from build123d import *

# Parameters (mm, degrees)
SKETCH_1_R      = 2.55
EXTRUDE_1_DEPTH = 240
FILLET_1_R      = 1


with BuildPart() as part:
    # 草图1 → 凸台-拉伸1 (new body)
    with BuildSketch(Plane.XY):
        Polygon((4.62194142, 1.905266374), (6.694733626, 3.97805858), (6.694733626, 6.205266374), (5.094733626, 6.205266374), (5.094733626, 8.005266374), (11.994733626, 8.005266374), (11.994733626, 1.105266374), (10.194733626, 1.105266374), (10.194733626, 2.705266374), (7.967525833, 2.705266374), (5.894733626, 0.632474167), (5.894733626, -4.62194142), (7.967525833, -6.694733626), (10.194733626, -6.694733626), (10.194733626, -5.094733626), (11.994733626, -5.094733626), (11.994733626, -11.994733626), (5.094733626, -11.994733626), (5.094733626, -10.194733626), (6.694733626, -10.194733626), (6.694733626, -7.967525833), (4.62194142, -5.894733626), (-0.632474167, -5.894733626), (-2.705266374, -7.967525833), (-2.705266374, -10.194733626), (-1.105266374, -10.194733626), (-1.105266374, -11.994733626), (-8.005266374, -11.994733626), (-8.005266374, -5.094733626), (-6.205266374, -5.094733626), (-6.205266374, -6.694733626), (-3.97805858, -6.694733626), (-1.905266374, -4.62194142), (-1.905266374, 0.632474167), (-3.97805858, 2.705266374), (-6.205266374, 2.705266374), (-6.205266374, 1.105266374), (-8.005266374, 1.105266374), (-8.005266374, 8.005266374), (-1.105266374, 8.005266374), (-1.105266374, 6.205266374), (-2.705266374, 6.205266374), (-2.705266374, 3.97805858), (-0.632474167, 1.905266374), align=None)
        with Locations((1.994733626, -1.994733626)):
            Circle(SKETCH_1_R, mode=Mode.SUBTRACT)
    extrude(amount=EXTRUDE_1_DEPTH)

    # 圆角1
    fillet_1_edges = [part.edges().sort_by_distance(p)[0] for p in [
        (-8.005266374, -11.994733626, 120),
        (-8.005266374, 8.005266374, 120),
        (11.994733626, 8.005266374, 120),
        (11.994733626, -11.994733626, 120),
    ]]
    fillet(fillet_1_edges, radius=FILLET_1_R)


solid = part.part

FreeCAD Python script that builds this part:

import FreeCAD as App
import Part
import Sketcher
from FreeCAD import Vector


def edges_at(feature, points):
    """Names of the edges that pass closest to the given points."""
    edges = feature.Shape.Edges
    near = lambda p: min(range(len(edges)), key=lambda i: edges[i].distToShape(Part.Vertex(*p))[0])
    return sorted({f"Edge{near(p) + 1}" for p in points})

doc = App.newDocument("Part")
body = doc.addObject("PartDesign::Body", "Body")

# Sketch on XY plane
sketch1 = body.newObject("Sketcher::SketchObject", "Sketch")
sketch1.AttachmentSupport = (doc.getObject("XY_Plane"), [""])
sketch1.MapMode = "FlatFace"
sketch1.addGeometry(Part.LineSegment(Vector(6.7, 4, 0), Vector(4.6, 1.9, 0)), False)
sketch1.addGeometry(Part.LineSegment(Vector(4.6, 1.9, 0), Vector(-0.6, 1.9, 0)), False)
sketch1.addGeometry(Part.LineSegment(Vector(-0.6, 1.9, 0), Vector(-2.7, 4, 0)), False)
sketch1.addGeometry(Part.LineSegment(Vector(-2.7, 4, 0), Vector(-2.7, 6.2, 0)), False)
sketch1.addGeometry(Part.LineSegment(Vector(-2.7, 6.2, 0), Vector(-1.1, 6.2, 0)), False)
sketch1.addGeometry(Part.LineSegment(Vector(-1.1, 6.2, 0), Vector(-1.1, 8, 0)), False)
sketch1.addGeometry(Part.LineSegment(Vector(-1.1, 8, 0), Vector(-8, 8, 0)), False)
sketch1.addGeometry(Part.LineSegment(Vector(-8, 8, 0), Vector(-8, 1.1, 0)), False)
sketch1.addGeometry(Part.LineSegment(Vector(-8, 1.1, 0), Vector(-6.2, 1.1, 0)), False)
sketch1.addGeometry(Part.LineSegment(Vector(-6.2, 1.1, 0), Vector(-6.2, 2.7, 0)), False)
sketch1.addGeometry(Part.LineSegment(Vector(-6.2, 2.7, 0), Vector(-4, 2.7, 0)), False)
sketch1.addGeometry(Part.LineSegment(Vector(-4, 2.7, 0), Vector(-1.9, 0.6, 0)), False)
sketch1.addGeometry(Part.LineSegment(Vector(-1.9, 0.6, 0), Vector(-1.9, -4.6, 0)), False)
sketch1.addGeometry(Part.LineSegment(Vector(-1.9, -4.6, 0), Vector(-4, -6.7, 0)), False)
sketch1.addGeometry(Part.LineSegment(Vector(-4, -6.7, 0), Vector(-6.2, -6.7, 0)), False)
sketch1.addGeometry(Part.LineSegment(Vector(-6.2, -6.7, 0), Vector(-6.2, -5.1, 0)), False)
sketch1.addGeometry(Part.LineSegment(Vector(-6.2, -5.1, 0), Vector(-8, -5.1, 0)), False)
sketch1.addGeometry(Part.LineSegment(Vector(-8, -5.1, 0), Vector(-8, -12, 0)), False)
sketch1.addGeometry(Part.LineSegment(Vector(-8, -12, 0), Vector(-1.1, -12, 0)), False)
sketch1.addGeometry(Part.LineSegment(Vector(-1.1, -12, 0), Vector(-1.1, -10.2, 0)), False)
sketch1.addGeometry(Part.LineSegment(Vector(-1.1, -10.2, 0), Vector(-2.7, -10.2, 0)), False)
sketch1.addGeometry(Part.LineSegment(Vector(-2.7, -10.2, 0), Vector(-2.7, -8, 0)), False)
sketch1.addGeometry(Part.LineSegment(Vector(-2.7, -8, 0), Vector(-0.6, -5.9, 0)), False)
sketch1.addGeometry(Part.LineSegment(Vector(-0.6, -5.9, 0), Vector(4.6, -5.9, 0)), False)
sketch1.addGeometry(Part.LineSegment(Vector(4.6, -5.9, 0), Vector(6.7, -8, 0)), False)
sketch1.addGeometry(Part.LineSegment(Vector(6.7, -8, 0), Vector(6.7, -10.2, 0)), False)
sketch1.addGeometry(Part.LineSegment(Vector(6.7, -10.2, 0), Vector(5.1, -10.2, 0)), False)
sketch1.addGeometry(Part.LineSegment(Vector(5.1, -10.2, 0), Vector(5.1, -12, 0)), False)
sketch1.addGeometry(Part.LineSegment(Vector(5.1, -12, 0), Vector(12, -12, 0)), False)
sketch1.addGeometry(Part.LineSegment(Vector(12, -12, 0), Vector(12, -5.1, 0)), False)
sketch1.addGeometry(Part.LineSegment(Vector(12, -5.1, 0), Vector(10.2, -5.1, 0)), False)
sketch1.addGeometry(Part.LineSegment(Vector(10.2, -5.1, 0), Vector(10.2, -6.7, 0)), False)
sketch1.addGeometry(Part.LineSegment(Vector(10.2, -6.7, 0), Vector(8, -6.7, 0)), False)
sketch1.addGeometry(Part.LineSegment(Vector(8, -6.7, 0), Vector(5.9, -4.6, 0)), False)
sketch1.addGeometry(Part.LineSegment(Vector(5.9, -4.6, 0), Vector(5.9, 0.6, 0)), False)
sketch1.addGeometry(Part.LineSegment(Vector(5.9, 0.6, 0), Vector(8, 2.7, 0)), False)
sketch1.addGeometry(Part.LineSegment(Vector(8, 2.7, 0), Vector(10.2, 2.7, 0)), False)
sketch1.addGeometry(Part.LineSegment(Vector(10.2, 2.7, 0), Vector(10.2, 1.1, 0)), False)
sketch1.addGeometry(Part.LineSegment(Vector(10.2, 1.1, 0), Vector(12, 1.1, 0)), False)
sketch1.addGeometry(Part.LineSegment(Vector(12, 1.1, 0), Vector(12, 8, 0)), False)
sketch1.addGeometry(Part.LineSegment(Vector(12, 8, 0), Vector(5.1, 8, 0)), False)
sketch1.addGeometry(Part.LineSegment(Vector(5.1, 8, 0), Vector(5.1, 6.2, 0)), False)
sketch1.addGeometry(Part.LineSegment(Vector(5.1, 6.2, 0), Vector(6.7, 6.2, 0)), False)
sketch1.addGeometry(Part.LineSegment(Vector(6.7, 6.2, 0), Vector(6.7, 4, 0)), False)
sketch1.addGeometry(Part.Circle(Vector(2, -2, 0), Vector(0, 0, 1), 2.5), False)
sketch1.addConstraint(Sketcher.Constraint("Coincident", 0, 2, 1, 1))
sketch1.addConstraint(Sketcher.Constraint("Coincident", 1, 2, 2, 1))
sketch1.addConstraint(Sketcher.Constraint("Coincident", 2, 2, 3, 1))
sketch1.addConstraint(Sketcher.Constraint("Coincident", 3, 2, 4, 1))
sketch1.addConstraint(Sketcher.Constraint("Coincident", 4, 2, 5, 1))
sketch1.addConstraint(Sketcher.Constraint("Coincident", 5, 2, 6, 1))
sketch1.addConstraint(Sketcher.Constraint("Coincident", 6, 2, 7, 1))
sketch1.addConstraint(Sketcher.Constraint("Coincident", 7, 2, 8, 1))
sketch1.addConstraint(Sketcher.Constraint("Coincident", 8, 2, 9, 1))
sketch1.addConstraint(Sketcher.Constraint("Coincident", 9, 2, 10, 1))
sketch1.addConstraint(Sketcher.Constraint("Coincident", 10, 2, 11, 1))
sketch1.addConstraint(Sketcher.Constraint("Coincident", 11, 2, 12, 1))
sketch1.addConstraint(Sketcher.Constraint("Coincident", 12, 2, 13, 1))
sketch1.addConstraint(Sketcher.Constraint("Coincident", 13, 2, 14, 1))
sketch1.addConstraint(Sketcher.Constraint("Coincident", 14, 2, 15, 1))
sketch1.addConstraint(Sketcher.Constraint("Coincident", 15, 2, 16, 1))
sketch1.addConstraint(Sketcher.Constraint("Coincident", 16, 2, 17, 1))
sketch1.addConstraint(Sketcher.Constraint("Coincident", 17, 2, 18, 1))
sketch1.addConstraint(Sketcher.Constraint("Coincident", 18, 2, 19, 1))
sketch1.addConstraint(Sketcher.Constraint("Coincident", 19, 2, 20, 1))
sketch1.addConstraint(Sketcher.Constraint("Coincident", 20, 2, 21, 1))
sketch1.addConstraint(Sketcher.Constraint("Coincident", 21, 2, 22, 1))
sketch1.addConstraint(Sketcher.Constraint("Coincident", 22, 2, 23, 1))
sketch1.addConstraint(Sketcher.Constraint("Coincident", 23, 2, 24, 1))
sketch1.addConstraint(Sketcher.Constraint("Coincident", 24, 2, 25, 1))
sketch1.addConstraint(Sketcher.Constraint("Coincident", 25, 2, 26, 1))
sketch1.addConstraint(Sketcher.Constraint("Coincident", 26, 2, 27, 1))
sketch1.addConstraint(Sketcher.Constraint("Coincident", 27, 2, 28, 1))
sketch1.addConstraint(Sketcher.Constraint("Coincident", 28, 2, 29, 1))
sketch1.addConstraint(Sketcher.Constraint("Coincident", 29, 2, 30, 1))
sketch1.addConstraint(Sketcher.Constraint("Coincident", 30, 2, 31, 1))
sketch1.addConstraint(Sketcher.Constraint("Coincident", 31, 2, 32, 1))
sketch1.addConstraint(Sketcher.Constraint("Coincident", 32, 2, 33, 1))
sketch1.addConstraint(Sketcher.Constraint("Coincident", 33, 2, 34, 1))
sketch1.addConstraint(Sketcher.Constraint("Coincident", 34, 2, 35, 1))
sketch1.addConstraint(Sketcher.Constraint("Coincident", 35, 2, 36, 1))
sketch1.addConstraint(Sketcher.Constraint("Coincident", 36, 2, 37, 1))
sketch1.addConstraint(Sketcher.Constraint("Coincident", 37, 2, 38, 1))
sketch1.addConstraint(Sketcher.Constraint("Coincident", 38, 2, 39, 1))
sketch1.addConstraint(Sketcher.Constraint("Coincident", 39, 2, 40, 1))
sketch1.addConstraint(Sketcher.Constraint("Coincident", 40, 2, 41, 1))
sketch1.addConstraint(Sketcher.Constraint("Coincident", 41, 2, 42, 1))
sketch1.addConstraint(Sketcher.Constraint("Coincident", 42, 2, 43, 1))
sketch1.addConstraint(Sketcher.Constraint("Coincident", 43, 2, 0, 1))
sketch1.addConstraint(Sketcher.Constraint("Horizontal", 1))
sketch1.addConstraint(Sketcher.Constraint("Vertical", 3))
sketch1.addConstraint(Sketcher.Constraint("Horizontal", 4))
sketch1.addConstraint(Sketcher.Constraint("Vertical", 5))
sketch1.addConstraint(Sketcher.Constraint("Horizontal", 6))
sketch1.addConstraint(Sketcher.Constraint("Vertical", 7))
sketch1.addConstraint(Sketcher.Constraint("Horizontal", 8))
sketch1.addConstraint(Sketcher.Constraint("Vertical", 9))
sketch1.addConstraint(Sketcher.Constraint("Horizontal", 10))
sketch1.addConstraint(Sketcher.Constraint("Vertical", 12))
sketch1.addConstraint(Sketcher.Constraint("Horizontal", 14))
sketch1.addConstraint(Sketcher.Constraint("Vertical", 15))
sketch1.addConstraint(Sketcher.Constraint("Horizontal", 16))
sketch1.addConstraint(Sketcher.Constraint("Vertical", 17))
sketch1.addConstraint(Sketcher.Constraint("Horizontal", 18))
sketch1.addConstraint(Sketcher.Constraint("Vertical", 19))
sketch1.addConstraint(Sketcher.Constraint("Horizontal", 20))
sketch1.addConstraint(Sketcher.Constraint("Vertical", 21))
sketch1.addConstraint(Sketcher.Constraint("Horizontal", 23))
sketch1.addConstraint(Sketcher.Constraint("Vertical", 25))
sketch1.addConstraint(Sketcher.Constraint("Horizontal", 26))
sketch1.addConstraint(Sketcher.Constraint("Vertical", 27))
sketch1.addConstraint(Sketcher.Constraint("Horizontal", 28))
sketch1.addConstraint(Sketcher.Constraint("Vertical", 29))
sketch1.addConstraint(Sketcher.Constraint("Horizontal", 30))
sketch1.addConstraint(Sketcher.Constraint("Vertical", 31))
sketch1.addConstraint(Sketcher.Constraint("Horizontal", 32))
sketch1.addConstraint(Sketcher.Constraint("Vertical", 34))
sketch1.addConstraint(Sketcher.Constraint("Horizontal", 36))
sketch1.addConstraint(Sketcher.Constraint("Vertical", 37))
sketch1.addConstraint(Sketcher.Constraint("Horizontal", 38))
sketch1.addConstraint(Sketcher.Constraint("Vertical", 39))
sketch1.addConstraint(Sketcher.Constraint("Horizontal", 40))
sketch1.addConstraint(Sketcher.Constraint("Vertical", 41))
sketch1.addConstraint(Sketcher.Constraint("Horizontal", 42))
sketch1.addConstraint(Sketcher.Constraint("Vertical", 43))
sketch1.addConstraint(Sketcher.Constraint("Perpendicular", 0, 2))
sketch1.addConstraint(Sketcher.Constraint("Parallel", 2, 11))
sketch1.addConstraint(Sketcher.Constraint("Perpendicular", 11, 13))
sketch1.addConstraint(Sketcher.Constraint("Parallel", 13, 22))
sketch1.addConstraint(Sketcher.Constraint("Perpendicular", 22, 24))
sketch1.addConstraint(Sketcher.Constraint("Parallel", 24, 33))
sketch1.addConstraint(Sketcher.Constraint("Perpendicular", 33, 35))
sketch1.addConstraint(Sketcher.Constraint("Horizontal", 21, 2, 24, 2))
sketch1.addConstraint(Sketcher.Constraint("Horizontal", 20, 2, 25, 2))
sketch1.addConstraint(Sketcher.Constraint("Horizontal", 18, 2, 27, 2))
sketch1.addConstraint(Sketcher.Constraint("Horizontal", 16, 2, 29, 2))
sketch1.addConstraint(Sketcher.Constraint("Horizontal", 14, 2, 31, 2))
sketch1.addConstraint(Sketcher.Constraint("Horizontal", 12, 2, 33, 2))
sketch1.addConstraint(Sketcher.Constraint("Horizontal", 11, 2, 34, 2))
sketch1.addConstraint(Sketcher.Constraint("Horizontal", 10, 2, 35, 2))
sketch1.addConstraint(Sketcher.Constraint("Horizontal", 8, 2, 37, 2))
sketch1.addConstraint(Sketcher.Constraint("Horizontal", 6, 2, 39, 2))
sketch1.addConstraint(Sketcher.Constraint("Horizontal", 4, 2, 41, 2))
sketch1.addConstraint(Sketcher.Constraint("Horizontal", 2, 2, 43, 2))
sketch1.addConstraint(Sketcher.Constraint("Vertical", 10, 2, 13, 2))
sketch1.addConstraint(Sketcher.Constraint("Vertical", 9, 2, 14, 2))
sketch1.addConstraint(Sketcher.Constraint("Vertical", 7, 2, 16, 2))
sketch1.addConstraint(Sketcher.Constraint("Vertical", 5, 2, 18, 2))
sketch1.addConstraint(Sketcher.Constraint("Vertical", 3, 2, 20, 2))
sketch1.addConstraint(Sketcher.Constraint("Vertical", 1, 2, 22, 2))
sketch1.addConstraint(Sketcher.Constraint("Vertical", 0, 2, 23, 2))
sketch1.addConstraint(Sketcher.Constraint("Vertical", 32, 2, 35, 2))
sketch1.addConstraint(Sketcher.Constraint("Vertical", 31, 2, 36, 2))
sketch1.addConstraint(Sketcher.Constraint("Vertical", 29, 2, 38, 2))
sketch1.addConstraint(Sketcher.Constraint("Vertical", 27, 2, 40, 2))
sketch1.addConstraint(Sketcher.Constraint("Equal", 20, 26))
sketch1.addConstraint(Sketcher.Constraint("Equal", 18, 28))
sketch1.addConstraint(Sketcher.Constraint("Equal", 16, 30))
sketch1.addConstraint(Sketcher.Constraint("Equal", 14, 32))
sketch1.addConstraint(Sketcher.Constraint("Equal", 36, 3))
sketch1.addConstraint(Sketcher.Constraint("Equal", 38, 5))
sketch1.addConstraint(Sketcher.Constraint("Equal", 40, 7))
sketch1.addConstraint(Sketcher.Constraint("Equal", 42, 9))
sketch1.addConstraint(Sketcher.Constraint("Equal", 23, 12))
sketch1.addConstraint(Sketcher.Constraint("Equal", 9, 15))
sketch1.addConstraint(Sketcher.Constraint("Equal", 7, 17))
sketch1.addConstraint(Sketcher.Constraint("Equal", 5, 19))
sketch1.addConstraint(Sketcher.Constraint("Equal", 3, 21))
sketch1.addConstraint(Sketcher.Constraint("Equal", 2, 11))
sketch1.addConstraint(Sketcher.Constraint("Diameter", 44, 5.1))
sketch1.addConstraint(Sketcher.Constraint("DistanceX", 4, 1, 4, 2, 1.6))
sketch1.addConstraint(Sketcher.Constraint("DistanceX", 6, 2, 6, 1, 6.9))
sketch1.addConstraint(Sketcher.Constraint("DistanceX", 8, 1, 8, 2, 1.8))
sketch1.addConstraint(Sketcher.Constraint("DistanceY", 44, 3, 0, 2, 3.9))
sketch1.addConstraint(Sketcher.Constraint("DistanceX", 2, 2, 44, 3, 4.7))
sketch1.addConstraint(Sketcher.Constraint("DistanceY", 1, 2, 3, 2, 4.3))
sketch1.addConstraint(Sketcher.Constraint("DistanceY", 13, 2, 44, 3, 4.7))
sketch1.addConstraint(Sketcher.Constraint("Distance", 0, 2.931371))
sketch1.addConstraint(Sketcher.Constraint("DistanceX", -1, 1, 0, 2, 4.621941))
sketch1.addConstraint(Sketcher.Constraint("DistanceY", -1, 1, 2, 2, 3.978059))
pad1 = body.newObject("PartDesign::Pad", "Pad")
pad1.Profile = sketch1
pad1.Length = 240
doc.recompute()

fillet = body.newObject("PartDesign::Fillet", "Fillet")
fillet.Base = (pad1, edges_at(pad1, [
    (-8.005, -11.995, 120),
    (-8.005, 8.005, 120),
    (11.995, 8.005, 120),
    (11.995, -11.995, 120),
]))
fillet.Radius = 1

doc.recompute()
